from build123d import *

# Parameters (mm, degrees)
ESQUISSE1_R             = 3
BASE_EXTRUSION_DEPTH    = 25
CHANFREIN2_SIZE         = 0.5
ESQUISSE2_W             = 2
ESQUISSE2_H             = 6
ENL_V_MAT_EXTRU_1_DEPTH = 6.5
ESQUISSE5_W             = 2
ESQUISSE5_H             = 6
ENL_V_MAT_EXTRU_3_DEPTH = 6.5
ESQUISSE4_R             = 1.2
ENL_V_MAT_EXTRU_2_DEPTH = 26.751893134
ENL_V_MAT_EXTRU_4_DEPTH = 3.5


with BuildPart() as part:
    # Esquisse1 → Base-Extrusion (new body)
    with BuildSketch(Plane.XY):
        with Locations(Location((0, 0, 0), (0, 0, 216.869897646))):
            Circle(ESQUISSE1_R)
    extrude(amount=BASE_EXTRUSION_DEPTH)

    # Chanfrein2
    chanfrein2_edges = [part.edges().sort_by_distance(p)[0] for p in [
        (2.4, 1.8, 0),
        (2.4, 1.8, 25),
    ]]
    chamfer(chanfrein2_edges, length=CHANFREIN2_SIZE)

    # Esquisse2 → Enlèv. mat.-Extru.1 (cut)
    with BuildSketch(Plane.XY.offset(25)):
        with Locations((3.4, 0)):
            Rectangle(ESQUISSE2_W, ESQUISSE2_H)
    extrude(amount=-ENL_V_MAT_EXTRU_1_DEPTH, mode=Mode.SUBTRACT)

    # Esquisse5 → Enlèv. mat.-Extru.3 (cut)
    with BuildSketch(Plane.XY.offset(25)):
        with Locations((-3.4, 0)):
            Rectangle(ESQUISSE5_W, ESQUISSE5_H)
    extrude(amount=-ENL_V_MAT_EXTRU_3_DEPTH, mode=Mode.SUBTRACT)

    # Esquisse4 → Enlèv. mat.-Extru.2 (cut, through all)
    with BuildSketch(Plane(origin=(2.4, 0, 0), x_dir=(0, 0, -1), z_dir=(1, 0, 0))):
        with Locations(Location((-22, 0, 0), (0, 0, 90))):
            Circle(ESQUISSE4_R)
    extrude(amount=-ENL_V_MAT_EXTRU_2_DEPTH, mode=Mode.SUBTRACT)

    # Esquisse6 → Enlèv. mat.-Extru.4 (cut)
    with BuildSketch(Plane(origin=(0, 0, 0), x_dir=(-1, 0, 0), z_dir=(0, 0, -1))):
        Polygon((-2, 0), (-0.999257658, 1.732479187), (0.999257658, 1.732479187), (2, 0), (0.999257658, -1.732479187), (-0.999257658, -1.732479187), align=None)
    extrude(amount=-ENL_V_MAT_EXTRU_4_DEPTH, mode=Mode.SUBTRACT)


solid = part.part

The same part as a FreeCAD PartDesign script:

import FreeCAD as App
import Part
import Sketcher


def edges_at(feature, points):
    """Names of the edges that pass closest to the given points."""
    edges = feature.Shape.Edges
    near = lambda p: min(range(len(edges)), key=lambda i: edges[i].distToShape(Part.Vertex(*p))[0])
    return sorted({f"Edge{near(p) + 1}" for p in points})

doc = App.newDocument("Part")
body = doc.addObject("PartDesign::Body", "Body")

sketch1 = doc.addObject("Sketcher::SketchObject", "Sketch")
body.addObject(sketch1)
sketch1.AttachmentSupport = (doc.XY_Plane, [""])
sketch1.MapMode = "FlatFace"
sketch1.addGeometry(Part.Circle(App.Vector(0, 0, 0), App.Vector(0, 0, 1), 3), False)
sketch1.addConstraint([
    Sketcher.Constraint("Coincident", 0, 3, -1, 1),
    Sketcher.Constraint("Diameter", 0, 6.0),
])
pad1 = doc.addObject("PartDesign::Pad", "Pad")
body.addObject(pad1)
pad1.Profile = sketch1
pad1.Length = 25
doc.recompute()

chamfer = doc.addObject("PartDesign::Chamfer", "Chamfer")
body.addObject(chamfer)
chamfer.Base = (pad1, edges_at(pad1, [(2.4, 1.8, 0), (2.4, 1.8, 25)]))
chamfer.Size = 0.5

sketch2 = doc.addObject("Sketcher::SketchObject", "Sketch001")
body.addObject(sketch2)
sketch2.AttachmentSupport = (doc.XY_Plane, [""])
sketch2.MapMode = "FlatFace"
sketch2.AttachmentOffset = App.Placement(App.Vector(0, 0, 25), App.Rotation())
sketch2.addGeometry([
    Part.LineSegment(App.Vector(2.4, 3, 0), App.Vector(2.4, -3, 0)),
    Part.LineSegment(App.Vector(2.4, -3, 0), App.Vector(4.4, -3, 0)),
    Part.LineSegment(App.Vector(4.4, -3, 0), App.Vector(4.4, 3, 0)),
    Part.LineSegment(App.Vector(4.4, 3, 0), App.Vector(2.4, 3, 0)),
], False)
sketch2.addConstraint([
    Sketcher.Constraint("Coincident", 0, 2, 1, 1),
    Sketcher.Constraint("Coincident", 1, 2, 2, 1),
    Sketcher.Constraint("Coincident", 2, 2, 3, 1),
    Sketcher.Constraint("Coincident", 3, 2, 0, 1),
    Sketcher.Constraint("Vertical", 0),
    Sketcher.Constraint("Horizontal", 1),
    Sketcher.Constraint("Vertical", 2),
    Sketcher.Constraint("Horizontal", 3),
    Sketcher.Constraint("DistanceX", 1, 1, 1, 2, 2.0),
    Sketcher.Constraint("DistanceY", 0, 2, 0, 1, 6.0),
    Sketcher.Constraint("DistanceY", 0, 2, -1, 1, 3.0),
    Sketcher.Constraint("DistanceX", -1, 1, 0, 2, 2.4),
])
pocket1 = doc.addObject("PartDesign::Pocket", "Pocket")
body.addObject(pocket1)
pocket1.Profile = sketch2
pocket1.Length = 6.5

sketch3 = doc.addObject("Sketcher::SketchObject", "Sketch002")
body.addObject(sketch3)
sketch3.AttachmentSupport = (doc.XY_Plane, [""])
sketch3.MapMode = "FlatFace"
sketch3.AttachmentOffset = App.Placement(App.Vector(0, 0, 25), App.Rotation())
sketch3.addGeometry([
    Part.LineSegment(App.Vector(-4.4, 3, 0), App.Vector(-4.4, -3, 0)),
    Part.LineSegment(App.Vector(-4.4, -3, 0), App.Vector(-2.4, -3, 0)),
    Part.LineSegment(App.Vector(-2.4, -3, 0), App.Vector(-2.4, 3, 0)),
    Part.LineSegment(App.Vector(-2.4, 3, 0), App.Vector(-4.4, 3, 0)),
], False)
sketch3.addConstraint([
    Sketcher.Constraint("Coincident", 0, 2, 1, 1),
    Sketcher.Constraint("Coincident", 1, 2, 2, 1),
    Sketcher.Constraint("Coincident", 2, 2, 3, 1),
    Sketcher.Constraint("Coincident", 3, 2, 0, 1),
    Sketcher.Constraint("Vertical", 0),
    Sketcher.Constraint("Horizontal", 1),
    Sketcher.Constraint("Vertical", 2),
    Sketcher.Constraint("Horizontal", 3),
    Sketcher.Constraint("DistanceX", 1, 1, 1, 2, 2.0),
    Sketcher.Constraint("DistanceY", 0, 2, 0, 1, 6.0),
    Sketcher.Constraint("DistanceY", 0, 2, -1, 1, 3.0),
    Sketcher.Constraint("DistanceX", 0, 2, -1, 1, 4.4),
])
pocket2 = doc.addObject("PartDesign::Pocket", "Pocket001")
body.addObject(pocket2)
pocket2.Profile = sketch3
pocket2.Length = 6.5

sketch4 = doc.addObject("Sketcher::SketchObject", "Sketch003")
body.addObject(sketch4)
sketch4.AttachmentSupport = (doc.YZ_Plane, [""])
sketch4.MapMode = "FlatFace"
sketch4.AttachmentOffset = App.Placement(App.Vector(0, 0, 2.4), App.Rotation())
sketch4.addGeometry(Part.Circle(App.Vector(0, 22, 0), App.Vector(0, 0, 1), 1.2), False)
sketch4.addConstraint([
    Sketcher.Constraint("PointOnObject", 0, 3, -2),
    Sketcher.Constraint("Diameter", 0, 2.4),
    Sketcher.Constraint("DistanceY", -1, 1, 0, 3, 22.0),
])
pocket3 = doc.addObject("PartDesign::Pocket", "Pocket002")
body.addObject(pocket3)
pocket3.Profile = sketch4
pocket3.Type = "ThroughAll"

sketch5 = doc.addObject("Sketcher::SketchObject", "Sketch004")
body.addObject(sketch5)
sketch5.AttachmentSupport = (doc.XY_Plane, [""])
sketch5.MapMode = "FlatFace"
sketch5.addGeometry([
    Part.LineSegment(App.Vector(1, 1.7, 0), App.Vector(2, 0, 0)),
    Part.LineSegment(App.Vector(2, 0, 0), App.Vector(1, -1.7, 0)),
    Part.LineSegment(App.Vector(1, -1.7, 0), App.Vector(-1, -1.7, 0)),
    Part.LineSegment(App.Vector(-1, -1.7, 0), App.Vector(-2, 0, 0)),
    Part.LineSegment(App.Vector(-2, 0, 0), App.Vector(-1, 1.7, 0)),
    Part.LineSegment(App.Vector(-1, 1.7, 0), App.Vector(1, 1.7, 0)),
], False)
sketch5.addConstraint([
    Sketcher.Constraint("Coincident", 0, 2, 1, 1),
    Sketcher.Constraint("Coincident", 1, 2, 2, 1),
    Sketcher.Constraint("Coincident", 2, 2, 3, 1),
    Sketcher.Constraint("Coincident", 3, 2, 4, 1),
    Sketcher.Constraint("Coincident", 4, 2, 5, 1),
    Sketcher.Constraint("Coincident", 5, 2, 0, 1),
    Sketcher.Constraint("Horizontal", 2),
    Sketcher.Constraint("Horizontal", 5),
    Sketcher.Constraint("Symmetric", 0, 2, 3, 2, -1, 1),
    Sketcher.Constraint("Symmetric", 1, 2, 4, 2, -1, 1),
    Sketcher.Constraint("PointOnObject", 0, 2, -1),
    Sketcher.Constraint("Parallel", 0, 3),
    Sketcher.Constraint("Vertical", 2, 2, 4, 2),
    Sketcher.Constraint("DistanceX", -1, 1, 0, 2, 2.0),
    Sketcher.Constraint("DistanceX", 2, 2, 2, 1, 1.998515),
    Sketcher.Constraint("DistanceY", 1, 2, -1, 1, 1.732479),
])
pocket4 = doc.addObject("PartDesign::Pocket", "Pocket003")
body.addObject(pocket4)
pocket4.Profile = sketch5
pocket4.Length = 3.5
pocket4.Reversed = True

doc.recompute()
